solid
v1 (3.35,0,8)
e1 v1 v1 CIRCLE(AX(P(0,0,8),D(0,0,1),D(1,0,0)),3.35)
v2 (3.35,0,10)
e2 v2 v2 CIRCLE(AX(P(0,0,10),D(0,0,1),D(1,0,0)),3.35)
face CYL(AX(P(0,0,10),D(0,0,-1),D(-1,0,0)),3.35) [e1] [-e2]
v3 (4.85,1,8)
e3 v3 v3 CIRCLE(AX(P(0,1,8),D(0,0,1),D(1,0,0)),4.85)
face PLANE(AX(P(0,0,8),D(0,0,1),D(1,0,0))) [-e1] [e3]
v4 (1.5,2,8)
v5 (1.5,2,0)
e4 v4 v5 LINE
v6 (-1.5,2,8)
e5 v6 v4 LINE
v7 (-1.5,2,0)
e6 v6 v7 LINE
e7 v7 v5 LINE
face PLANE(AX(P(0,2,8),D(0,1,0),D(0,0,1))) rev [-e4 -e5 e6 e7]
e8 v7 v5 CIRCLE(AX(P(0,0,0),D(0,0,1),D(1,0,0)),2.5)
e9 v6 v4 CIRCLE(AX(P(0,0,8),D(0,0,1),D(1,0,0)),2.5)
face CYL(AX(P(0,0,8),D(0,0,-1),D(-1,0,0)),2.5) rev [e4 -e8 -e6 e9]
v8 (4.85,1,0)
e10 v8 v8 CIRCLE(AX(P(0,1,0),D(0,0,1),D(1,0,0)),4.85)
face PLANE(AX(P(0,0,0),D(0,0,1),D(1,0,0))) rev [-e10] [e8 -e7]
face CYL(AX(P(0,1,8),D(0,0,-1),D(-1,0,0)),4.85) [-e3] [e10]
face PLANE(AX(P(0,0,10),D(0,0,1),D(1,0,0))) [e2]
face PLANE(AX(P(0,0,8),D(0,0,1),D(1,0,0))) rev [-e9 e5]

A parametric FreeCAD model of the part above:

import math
import FreeCAD as App
import Part
import Sketcher

V = App.Vector

doc = App.newDocument("Part")
body = doc.addObject("PartDesign::Body", "Body")

# Sketch on XY plane
sketch1 = doc.addObject("Sketcher::SketchObject", "Sketch")
body.addObject(sketch1)
sketch1.AttachmentSupport = (doc.XY_Plane, [""])
sketch1.MapMode = "FlatFace"
sketch1.addGeometry([
    Part.Circle(V(0, 1, 0), V(0, 0, 1), 4.85),
    Part.ArcOfCircle(Part.Circle(V(0, 0, 0), V(0, 0, 1), 2.5), math.radians(126.869898), math.radians(413.130102)),
    Part.LineSegment(V(-1.5, 2, 0), V(1.5, 2, 0)),
], False)
sketch1.addConstraint([
    Sketcher.Constraint("Coincident", 1, 1, 2, 1),
    Sketcher.Constraint("Coincident", 2, 2, 1, 2),
    Sketcher.Constraint("Horizontal", 2),
    Sketcher.Constraint("Coincident", 1, 3, -1, 1),
    Sketcher.Constraint("PointOnObject", 0, 3, -2),
    Sketcher.Constraint("Diameter", 0, 9.7),
    Sketcher.Constraint("Radius", 1, 2.5),
    Sketcher.Constraint("DistanceX", 2, 1, 2, 2, 3.0),
    Sketcher.Constraint("DistanceY", -1, 1, 0, 3, 1.0),
])
pad1 = doc.addObject("PartDesign::Pad", "Pad")
body.addObject(pad1)
pad1.Profile = sketch1
pad1.Length = 8

# Sketch on XY plane
sketch2 = doc.addObject("Sketcher::SketchObject", "Sketch001")
body.addObject(sketch2)
sketch2.AttachmentSupport = (doc.XY_Plane, [""])
sketch2.MapMode = "FlatFace"
sketch2.AttachmentOffset = App.Placement(V(0, 0, 8), App.Rotation())
sketch2.addGeometry(Part.Circle(V(0, 0, 0), V(0, 0, 1), 3.35), False)
sketch2.addConstraint([
    Sketcher.Constraint("Coincident", 0, 3, -1, 1),
    Sketcher.Constraint("Diameter", 0, 6.7),
])
pad2 = doc.addObject("PartDesign::Pad", "Pad001")
body.addObject(pad2)
pad2.Profile = sketch2
pad2.Length = 2

doc.recompute()
